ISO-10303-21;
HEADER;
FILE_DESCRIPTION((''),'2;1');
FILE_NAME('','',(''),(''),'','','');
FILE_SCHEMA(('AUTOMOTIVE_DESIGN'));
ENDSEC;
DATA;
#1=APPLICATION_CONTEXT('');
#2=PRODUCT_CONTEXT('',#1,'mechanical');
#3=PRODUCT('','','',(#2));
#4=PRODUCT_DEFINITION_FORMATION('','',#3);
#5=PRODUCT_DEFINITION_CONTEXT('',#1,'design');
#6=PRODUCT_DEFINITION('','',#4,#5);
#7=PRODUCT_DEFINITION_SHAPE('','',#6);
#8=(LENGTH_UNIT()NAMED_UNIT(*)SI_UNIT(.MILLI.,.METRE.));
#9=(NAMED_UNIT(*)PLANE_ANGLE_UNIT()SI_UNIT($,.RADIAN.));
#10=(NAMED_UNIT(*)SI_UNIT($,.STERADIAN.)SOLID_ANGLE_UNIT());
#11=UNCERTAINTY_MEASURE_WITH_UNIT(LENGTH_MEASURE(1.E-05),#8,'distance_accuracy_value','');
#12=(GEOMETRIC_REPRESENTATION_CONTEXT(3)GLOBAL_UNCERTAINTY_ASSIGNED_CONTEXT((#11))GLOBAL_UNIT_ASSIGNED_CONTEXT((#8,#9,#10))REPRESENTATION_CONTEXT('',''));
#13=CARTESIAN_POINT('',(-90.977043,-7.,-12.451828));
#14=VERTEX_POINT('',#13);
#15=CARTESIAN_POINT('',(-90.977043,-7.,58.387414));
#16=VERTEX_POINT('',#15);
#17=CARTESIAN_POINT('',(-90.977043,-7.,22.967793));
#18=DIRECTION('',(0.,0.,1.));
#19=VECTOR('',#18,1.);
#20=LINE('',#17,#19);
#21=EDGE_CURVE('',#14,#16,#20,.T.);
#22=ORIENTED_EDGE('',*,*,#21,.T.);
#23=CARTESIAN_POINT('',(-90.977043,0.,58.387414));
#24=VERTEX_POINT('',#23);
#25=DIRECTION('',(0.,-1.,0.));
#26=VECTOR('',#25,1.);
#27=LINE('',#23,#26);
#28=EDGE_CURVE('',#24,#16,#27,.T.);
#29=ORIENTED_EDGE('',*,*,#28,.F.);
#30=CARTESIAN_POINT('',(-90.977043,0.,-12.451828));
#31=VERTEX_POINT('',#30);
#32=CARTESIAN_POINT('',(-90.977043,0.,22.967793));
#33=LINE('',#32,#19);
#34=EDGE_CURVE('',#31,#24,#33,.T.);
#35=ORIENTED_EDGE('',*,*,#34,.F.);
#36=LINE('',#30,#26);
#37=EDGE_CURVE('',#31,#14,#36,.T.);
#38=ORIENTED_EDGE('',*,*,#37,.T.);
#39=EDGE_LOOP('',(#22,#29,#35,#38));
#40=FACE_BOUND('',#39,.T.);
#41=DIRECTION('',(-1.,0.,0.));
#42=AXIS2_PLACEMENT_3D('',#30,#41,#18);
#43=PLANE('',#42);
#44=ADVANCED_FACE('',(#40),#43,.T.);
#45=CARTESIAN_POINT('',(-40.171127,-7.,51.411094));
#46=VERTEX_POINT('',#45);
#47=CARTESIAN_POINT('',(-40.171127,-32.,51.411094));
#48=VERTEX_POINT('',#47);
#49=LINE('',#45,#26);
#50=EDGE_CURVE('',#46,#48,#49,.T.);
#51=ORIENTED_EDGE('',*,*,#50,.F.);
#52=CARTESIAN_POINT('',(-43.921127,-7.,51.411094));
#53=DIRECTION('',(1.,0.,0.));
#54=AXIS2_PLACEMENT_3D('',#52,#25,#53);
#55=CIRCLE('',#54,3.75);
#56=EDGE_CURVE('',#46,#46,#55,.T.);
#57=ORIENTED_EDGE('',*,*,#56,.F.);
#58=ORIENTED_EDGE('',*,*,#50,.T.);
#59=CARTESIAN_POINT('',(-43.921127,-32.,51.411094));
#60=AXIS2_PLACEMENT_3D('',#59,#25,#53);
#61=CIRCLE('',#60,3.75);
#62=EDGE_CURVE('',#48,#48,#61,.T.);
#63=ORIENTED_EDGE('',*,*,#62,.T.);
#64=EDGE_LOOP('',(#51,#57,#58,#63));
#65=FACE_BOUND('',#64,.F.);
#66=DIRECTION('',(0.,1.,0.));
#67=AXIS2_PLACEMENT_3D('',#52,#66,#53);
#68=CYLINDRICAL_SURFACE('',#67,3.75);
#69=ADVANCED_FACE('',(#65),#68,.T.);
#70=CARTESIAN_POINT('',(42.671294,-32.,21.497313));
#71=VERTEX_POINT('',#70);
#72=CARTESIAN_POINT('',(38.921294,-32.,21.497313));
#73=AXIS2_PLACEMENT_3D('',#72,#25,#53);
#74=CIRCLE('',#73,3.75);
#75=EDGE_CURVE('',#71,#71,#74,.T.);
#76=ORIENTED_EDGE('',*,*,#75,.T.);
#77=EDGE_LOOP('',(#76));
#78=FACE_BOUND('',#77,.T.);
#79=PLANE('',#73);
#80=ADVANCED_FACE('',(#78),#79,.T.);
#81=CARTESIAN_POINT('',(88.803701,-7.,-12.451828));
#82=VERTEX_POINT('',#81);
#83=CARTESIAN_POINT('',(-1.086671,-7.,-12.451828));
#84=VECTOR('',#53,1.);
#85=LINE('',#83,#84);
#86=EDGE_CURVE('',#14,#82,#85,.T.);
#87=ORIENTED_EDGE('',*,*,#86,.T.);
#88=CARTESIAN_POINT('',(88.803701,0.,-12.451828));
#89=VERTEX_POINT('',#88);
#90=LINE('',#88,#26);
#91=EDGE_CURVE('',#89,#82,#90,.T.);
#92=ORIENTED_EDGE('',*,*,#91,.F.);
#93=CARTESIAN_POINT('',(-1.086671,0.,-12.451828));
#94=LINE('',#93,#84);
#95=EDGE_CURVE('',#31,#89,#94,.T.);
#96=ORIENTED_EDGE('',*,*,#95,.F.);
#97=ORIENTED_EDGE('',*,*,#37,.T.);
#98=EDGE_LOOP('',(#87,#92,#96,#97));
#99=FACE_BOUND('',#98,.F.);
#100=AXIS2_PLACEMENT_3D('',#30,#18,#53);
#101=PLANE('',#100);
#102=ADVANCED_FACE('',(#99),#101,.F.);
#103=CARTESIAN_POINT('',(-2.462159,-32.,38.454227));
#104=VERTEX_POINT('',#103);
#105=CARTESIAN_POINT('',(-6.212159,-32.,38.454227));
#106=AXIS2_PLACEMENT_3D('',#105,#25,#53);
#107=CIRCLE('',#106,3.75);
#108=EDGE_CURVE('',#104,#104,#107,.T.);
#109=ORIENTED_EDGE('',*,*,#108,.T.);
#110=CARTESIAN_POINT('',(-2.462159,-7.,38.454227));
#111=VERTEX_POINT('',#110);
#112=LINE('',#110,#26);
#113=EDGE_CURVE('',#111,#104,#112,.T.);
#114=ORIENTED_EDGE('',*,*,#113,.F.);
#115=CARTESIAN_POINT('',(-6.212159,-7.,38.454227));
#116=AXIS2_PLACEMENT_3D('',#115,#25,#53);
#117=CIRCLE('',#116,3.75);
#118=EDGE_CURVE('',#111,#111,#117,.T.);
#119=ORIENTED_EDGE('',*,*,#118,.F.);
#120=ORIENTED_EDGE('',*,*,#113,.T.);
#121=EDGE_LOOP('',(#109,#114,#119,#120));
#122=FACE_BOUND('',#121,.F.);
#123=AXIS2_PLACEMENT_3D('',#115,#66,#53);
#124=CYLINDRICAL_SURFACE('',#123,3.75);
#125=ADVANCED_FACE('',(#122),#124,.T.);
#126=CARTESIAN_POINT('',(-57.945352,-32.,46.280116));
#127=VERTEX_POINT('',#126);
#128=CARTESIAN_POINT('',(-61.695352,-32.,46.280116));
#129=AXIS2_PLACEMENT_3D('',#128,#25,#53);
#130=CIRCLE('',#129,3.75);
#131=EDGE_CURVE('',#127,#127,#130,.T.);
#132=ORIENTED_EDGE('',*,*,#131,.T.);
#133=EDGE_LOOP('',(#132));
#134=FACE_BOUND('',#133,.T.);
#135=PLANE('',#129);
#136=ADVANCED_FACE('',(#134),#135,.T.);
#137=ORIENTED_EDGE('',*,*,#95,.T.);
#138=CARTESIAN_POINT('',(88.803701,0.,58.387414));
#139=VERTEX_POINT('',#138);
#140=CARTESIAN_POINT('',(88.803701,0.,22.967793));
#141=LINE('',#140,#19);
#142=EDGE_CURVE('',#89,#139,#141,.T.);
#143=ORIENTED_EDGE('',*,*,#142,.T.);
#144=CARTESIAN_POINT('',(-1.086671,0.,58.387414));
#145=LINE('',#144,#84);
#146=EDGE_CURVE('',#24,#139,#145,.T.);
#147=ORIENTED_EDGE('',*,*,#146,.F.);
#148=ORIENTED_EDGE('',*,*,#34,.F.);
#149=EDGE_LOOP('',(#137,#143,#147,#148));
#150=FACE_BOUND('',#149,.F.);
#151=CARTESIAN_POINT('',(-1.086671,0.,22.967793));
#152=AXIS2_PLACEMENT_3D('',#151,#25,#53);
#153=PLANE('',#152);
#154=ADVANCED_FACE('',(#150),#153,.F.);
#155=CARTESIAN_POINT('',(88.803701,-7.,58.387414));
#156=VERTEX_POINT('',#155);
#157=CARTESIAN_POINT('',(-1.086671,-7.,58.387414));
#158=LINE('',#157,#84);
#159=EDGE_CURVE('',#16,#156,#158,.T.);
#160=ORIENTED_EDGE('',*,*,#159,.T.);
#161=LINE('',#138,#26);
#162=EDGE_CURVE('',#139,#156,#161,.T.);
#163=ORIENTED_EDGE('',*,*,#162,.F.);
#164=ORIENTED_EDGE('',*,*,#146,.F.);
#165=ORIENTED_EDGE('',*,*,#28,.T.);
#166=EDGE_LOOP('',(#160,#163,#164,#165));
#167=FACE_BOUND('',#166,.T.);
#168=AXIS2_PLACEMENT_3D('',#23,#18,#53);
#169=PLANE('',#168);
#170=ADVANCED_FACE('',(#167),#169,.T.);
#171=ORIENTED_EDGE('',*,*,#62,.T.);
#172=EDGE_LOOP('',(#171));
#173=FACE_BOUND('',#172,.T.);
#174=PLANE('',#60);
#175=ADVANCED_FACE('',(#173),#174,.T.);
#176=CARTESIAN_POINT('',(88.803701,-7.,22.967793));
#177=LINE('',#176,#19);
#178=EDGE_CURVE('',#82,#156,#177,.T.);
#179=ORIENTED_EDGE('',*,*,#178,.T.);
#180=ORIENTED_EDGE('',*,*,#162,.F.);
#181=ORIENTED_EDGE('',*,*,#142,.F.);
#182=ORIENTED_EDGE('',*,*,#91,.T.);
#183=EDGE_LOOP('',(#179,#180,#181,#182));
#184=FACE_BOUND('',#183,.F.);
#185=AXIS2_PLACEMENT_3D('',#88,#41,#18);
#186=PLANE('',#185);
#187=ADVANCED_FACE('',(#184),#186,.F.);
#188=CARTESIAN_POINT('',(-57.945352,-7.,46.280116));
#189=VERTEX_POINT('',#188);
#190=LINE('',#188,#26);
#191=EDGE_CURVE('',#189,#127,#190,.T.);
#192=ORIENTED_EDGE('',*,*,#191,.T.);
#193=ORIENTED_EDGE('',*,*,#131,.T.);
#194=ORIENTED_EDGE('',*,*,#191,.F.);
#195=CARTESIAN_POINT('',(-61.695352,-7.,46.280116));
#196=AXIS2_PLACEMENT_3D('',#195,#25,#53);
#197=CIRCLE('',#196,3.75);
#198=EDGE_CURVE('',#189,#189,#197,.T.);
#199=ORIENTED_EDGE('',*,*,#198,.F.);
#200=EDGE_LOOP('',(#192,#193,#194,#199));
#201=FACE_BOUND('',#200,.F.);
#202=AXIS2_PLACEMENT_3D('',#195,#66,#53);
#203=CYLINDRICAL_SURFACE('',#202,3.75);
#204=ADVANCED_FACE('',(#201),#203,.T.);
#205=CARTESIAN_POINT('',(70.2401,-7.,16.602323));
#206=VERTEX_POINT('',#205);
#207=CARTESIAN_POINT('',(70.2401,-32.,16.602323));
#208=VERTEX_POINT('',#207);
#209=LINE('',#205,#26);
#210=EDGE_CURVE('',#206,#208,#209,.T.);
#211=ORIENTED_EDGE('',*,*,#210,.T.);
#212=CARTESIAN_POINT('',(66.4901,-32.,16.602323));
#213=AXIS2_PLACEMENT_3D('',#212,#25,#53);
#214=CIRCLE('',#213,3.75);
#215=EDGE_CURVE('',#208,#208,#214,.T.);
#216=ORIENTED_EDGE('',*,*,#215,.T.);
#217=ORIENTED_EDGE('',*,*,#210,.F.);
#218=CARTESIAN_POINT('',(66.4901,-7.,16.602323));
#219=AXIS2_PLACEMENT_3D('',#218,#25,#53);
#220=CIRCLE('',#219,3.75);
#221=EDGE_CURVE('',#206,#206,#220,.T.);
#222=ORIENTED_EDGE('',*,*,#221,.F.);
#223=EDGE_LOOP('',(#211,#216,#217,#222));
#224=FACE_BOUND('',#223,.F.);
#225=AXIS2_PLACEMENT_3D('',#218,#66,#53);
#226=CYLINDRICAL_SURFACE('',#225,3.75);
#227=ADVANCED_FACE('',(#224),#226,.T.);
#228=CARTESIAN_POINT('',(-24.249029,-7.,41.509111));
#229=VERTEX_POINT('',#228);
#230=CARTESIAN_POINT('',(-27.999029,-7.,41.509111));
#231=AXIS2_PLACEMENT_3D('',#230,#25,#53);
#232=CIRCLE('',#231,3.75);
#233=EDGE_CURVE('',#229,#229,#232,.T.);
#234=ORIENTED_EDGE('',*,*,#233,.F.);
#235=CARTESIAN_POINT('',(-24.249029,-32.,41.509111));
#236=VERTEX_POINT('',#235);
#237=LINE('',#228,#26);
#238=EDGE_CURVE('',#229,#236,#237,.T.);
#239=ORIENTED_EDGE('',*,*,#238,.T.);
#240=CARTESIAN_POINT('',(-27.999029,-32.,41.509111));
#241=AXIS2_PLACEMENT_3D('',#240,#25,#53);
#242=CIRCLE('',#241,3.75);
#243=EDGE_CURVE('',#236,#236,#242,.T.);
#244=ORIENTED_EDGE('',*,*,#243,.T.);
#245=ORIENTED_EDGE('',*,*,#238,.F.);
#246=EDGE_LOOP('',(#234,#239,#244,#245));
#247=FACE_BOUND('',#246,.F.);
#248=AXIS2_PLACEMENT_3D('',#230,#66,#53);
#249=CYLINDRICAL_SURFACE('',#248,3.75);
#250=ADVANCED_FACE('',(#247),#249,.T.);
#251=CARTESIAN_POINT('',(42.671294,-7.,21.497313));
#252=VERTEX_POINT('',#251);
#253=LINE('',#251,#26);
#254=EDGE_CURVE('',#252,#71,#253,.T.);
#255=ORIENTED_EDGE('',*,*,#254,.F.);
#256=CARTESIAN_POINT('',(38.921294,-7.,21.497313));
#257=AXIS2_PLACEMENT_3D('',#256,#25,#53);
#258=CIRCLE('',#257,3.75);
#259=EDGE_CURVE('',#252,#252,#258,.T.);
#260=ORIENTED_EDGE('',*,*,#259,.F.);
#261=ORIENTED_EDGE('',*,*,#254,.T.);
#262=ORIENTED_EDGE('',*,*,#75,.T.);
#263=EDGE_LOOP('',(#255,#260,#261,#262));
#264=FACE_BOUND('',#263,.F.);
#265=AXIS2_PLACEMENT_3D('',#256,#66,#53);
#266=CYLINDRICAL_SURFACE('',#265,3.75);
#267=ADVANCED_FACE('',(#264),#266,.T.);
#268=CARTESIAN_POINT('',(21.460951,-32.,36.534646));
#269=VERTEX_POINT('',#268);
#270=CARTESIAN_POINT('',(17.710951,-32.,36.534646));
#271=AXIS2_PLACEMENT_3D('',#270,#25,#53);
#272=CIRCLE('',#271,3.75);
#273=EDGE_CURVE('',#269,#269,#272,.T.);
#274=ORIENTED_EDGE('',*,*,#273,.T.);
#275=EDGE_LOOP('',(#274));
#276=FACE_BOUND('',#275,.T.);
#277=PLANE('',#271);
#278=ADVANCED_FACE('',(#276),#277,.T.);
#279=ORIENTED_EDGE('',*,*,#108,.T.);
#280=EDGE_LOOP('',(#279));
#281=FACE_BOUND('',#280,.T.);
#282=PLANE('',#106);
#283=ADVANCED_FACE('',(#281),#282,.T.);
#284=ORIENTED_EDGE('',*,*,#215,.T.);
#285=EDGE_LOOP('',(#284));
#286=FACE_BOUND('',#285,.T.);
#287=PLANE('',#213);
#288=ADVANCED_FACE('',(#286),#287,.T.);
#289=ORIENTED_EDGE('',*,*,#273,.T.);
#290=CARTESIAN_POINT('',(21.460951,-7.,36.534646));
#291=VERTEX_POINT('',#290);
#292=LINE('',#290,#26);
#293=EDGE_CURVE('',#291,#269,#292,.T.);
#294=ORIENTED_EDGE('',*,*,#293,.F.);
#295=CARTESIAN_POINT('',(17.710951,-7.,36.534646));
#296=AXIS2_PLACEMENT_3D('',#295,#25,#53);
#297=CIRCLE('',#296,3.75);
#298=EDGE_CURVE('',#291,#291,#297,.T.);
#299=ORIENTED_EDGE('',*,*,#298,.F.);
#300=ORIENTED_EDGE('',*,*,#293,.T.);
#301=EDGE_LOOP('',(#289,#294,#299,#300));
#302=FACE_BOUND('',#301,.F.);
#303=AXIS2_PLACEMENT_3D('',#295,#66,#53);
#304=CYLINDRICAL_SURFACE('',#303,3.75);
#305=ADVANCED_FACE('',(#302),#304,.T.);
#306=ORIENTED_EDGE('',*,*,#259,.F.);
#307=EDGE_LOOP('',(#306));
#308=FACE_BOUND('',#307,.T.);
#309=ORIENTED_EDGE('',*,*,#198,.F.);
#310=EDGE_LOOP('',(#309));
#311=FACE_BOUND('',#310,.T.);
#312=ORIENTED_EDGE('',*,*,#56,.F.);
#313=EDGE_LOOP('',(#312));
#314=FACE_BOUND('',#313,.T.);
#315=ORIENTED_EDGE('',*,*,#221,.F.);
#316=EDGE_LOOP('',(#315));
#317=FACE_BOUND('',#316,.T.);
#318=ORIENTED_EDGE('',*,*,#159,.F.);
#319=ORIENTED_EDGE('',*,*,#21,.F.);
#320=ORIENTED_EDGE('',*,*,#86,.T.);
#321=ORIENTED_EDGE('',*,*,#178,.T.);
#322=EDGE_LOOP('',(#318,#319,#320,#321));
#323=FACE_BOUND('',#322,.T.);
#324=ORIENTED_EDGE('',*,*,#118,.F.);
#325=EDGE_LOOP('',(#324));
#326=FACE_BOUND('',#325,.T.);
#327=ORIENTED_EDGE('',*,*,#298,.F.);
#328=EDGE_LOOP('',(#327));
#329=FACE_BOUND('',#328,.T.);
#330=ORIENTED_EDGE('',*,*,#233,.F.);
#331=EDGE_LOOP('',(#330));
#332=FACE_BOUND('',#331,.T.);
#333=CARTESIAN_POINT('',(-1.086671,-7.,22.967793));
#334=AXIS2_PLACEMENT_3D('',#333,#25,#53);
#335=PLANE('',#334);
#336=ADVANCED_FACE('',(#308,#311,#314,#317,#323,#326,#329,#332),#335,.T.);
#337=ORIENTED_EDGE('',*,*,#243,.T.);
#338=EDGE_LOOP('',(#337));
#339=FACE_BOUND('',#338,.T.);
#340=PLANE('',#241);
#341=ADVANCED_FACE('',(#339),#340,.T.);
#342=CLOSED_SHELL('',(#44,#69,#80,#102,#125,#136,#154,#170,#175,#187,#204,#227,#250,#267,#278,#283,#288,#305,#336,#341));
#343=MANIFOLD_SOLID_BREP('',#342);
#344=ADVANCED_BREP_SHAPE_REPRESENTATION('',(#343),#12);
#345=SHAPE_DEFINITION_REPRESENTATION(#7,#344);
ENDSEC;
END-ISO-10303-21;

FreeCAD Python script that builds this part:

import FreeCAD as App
import Part
import Sketcher

V = App.Vector
Q = App.Units.Quantity

doc = App.newDocument("Part")
body = doc.addObject("PartDesign::Body", "Body")

sketch1 = body.newObject("Sketcher::SketchObject", "Sketch")
sketch1.AttachmentSupport = (doc.getObject("XZ_Plane"), [""])
sketch1.MapMode = "FlatFace"
sketch1.addGeometry([
    Part.LineSegment(V(-91, 58, 0), V(-91, -12, 0)),
    Part.LineSegment(V(-91, -12, 0), V(89, -12, 0)),
    Part.LineSegment(V(89, -12, 0), V(89, 58, 0)),
    Part.LineSegment(V(89, 58, 0), V(-91, 58, 0)),
], False)
sketch1.addConstraint([
    Sketcher.Constraint("Coincident", 0, 2, 1, 1),
    Sketcher.Constraint("Coincident", 1, 2, 2, 1),
    Sketcher.Constraint("Coincident", 2, 2, 3, 1),
    Sketcher.Constraint("Coincident", 3, 2, 0, 1),
    Sketcher.Constraint("Vertical", 0),
    Sketcher.Constraint("Horizontal", 1),
    Sketcher.Constraint("Vertical", 2),
    Sketcher.Constraint("Horizontal", 3),
    Sketcher.Constraint("DistanceY", 0, 2, 0, 1, Q("70.839242 mm")),
    Sketcher.Constraint("DistanceX", -1, 1, 1, 2, Q("88.803701 mm")),
    Sketcher.Constraint("DistanceX", 1, 1, 1, 2, Q("179.780744 mm")),
    Sketcher.Constraint("DistanceY", 0, 2, -1, 1, Q("12.451828 mm")),
])
pad1 = body.newObject("PartDesign::Pad", "Pad")
pad1.Profile = sketch1
pad1.Length = 7

sketch2 = body.newObject("Sketcher::SketchObject", "Sketch001")
sketch2.AttachmentSupport = (doc.getObject("XZ_Plane"), [""])
sketch2.MapMode = "FlatFace"
sketch2.AttachmentOffset = App.Placement(V(0, 0, 7), App.Rotation())
sketch2.addGeometry(Part.Circle(V(-61.7, 46.3, 0), V(0, 0, 1), 3.8), False)
sketch2.addConstraint([
    Sketcher.Constraint("Diameter", 0, Q("7.5 mm")),
    Sketcher.Constraint("DistanceX", 0, 3, -1, 1, Q("61.695352 mm")),
    Sketcher.Constraint("DistanceY", -1, 1, 0, 3, Q("46.280116 mm")),
])
pad2 = body.newObject("PartDesign::Pad", "Pad001")
pad2.Profile = sketch2
pad2.Length = 25

sketch3 = body.newObject("Sketcher::SketchObject", "Sketch002")
sketch3.AttachmentSupport = (doc.getObject("XZ_Plane"), [""])
sketch3.MapMode = "FlatFace"
sketch3.AttachmentOffset = App.Placement(V(0, 0, 7), App.Rotation())
sketch3.addGeometry(Part.Circle(V(-43.9, 51.4, 0), V(0, 0, 1), 3.8), False)
sketch3.addConstraint([
    Sketcher.Constraint("Diameter", 0, Q("7.5 mm")),
    Sketcher.Constraint("DistanceX", 0, 3, -1, 1, Q("43.921127 mm")),
    Sketcher.Constraint("DistanceY", -1, 1, 0, 3, Q("51.411094 mm")),
])
pad3 = body.newObject("PartDesign::Pad", "Pad002")
pad3.Profile = sketch3
pad3.Length = 25

sketch4 = body.newObject("Sketcher::SketchObject", "Sketch003")
sketch4.AttachmentSupport = (doc.getObject("XZ_Plane"), [""])
sketch4.MapMode = "FlatFace"
sketch4.AttachmentOffset = App.Placement(V(0, 0, 7), App.Rotation())
sketch4.addGeometry(Part.Circle(V(-28, 41.5, 0), V(0, 0, 1), 3.8), False)
sketch4.addConstraint([
    Sketcher.Constraint("Diameter", 0, Q("7.5 mm")),
    Sketcher.Constraint("DistanceX", 0, 3, -1, 1, Q("27.999029 mm")),
    Sketcher.Constraint("DistanceY", -1, 1, 0, 3, Q("41.509111 mm")),
])
pad4 = body.newObject("PartDesign::Pad", "Pad003")
pad4.Profile = sketch4
pad4.Length = 25

sketch5 = body.newObject("Sketcher::SketchObject", "Sketch004")
sketch5.AttachmentSupport = (doc.getObject("XZ_Plane"), [""])
sketch5.MapMode = "FlatFace"
sketch5.AttachmentOffset = App.Placement(V(0, 0, 7), App.Rotation())
sketch5.addGeometry(Part.Circle(V(-6.2, 38.5, 0), V(0, 0, 1), 3.8), False)
sketch5.addConstraint([
    Sketcher.Constraint("Diameter", 0, Q("7.5 mm")),
    Sketcher.Constraint("DistanceX", 0, 3, -1, 1, Q("6.212159 mm")),
    Sketcher.Constraint("DistanceY", -1, 1, 0, 3, Q("38.454227 mm")),
])
pad5 = body.newObject("PartDesign::Pad", "Pad004")
pad5.Profile = sketch5
pad5.Length = 25

sketch6 = body.newObject("Sketcher::SketchObject", "Sketch005")
sketch6.AttachmentSupport = (doc.getObject("XZ_Plane"), [""])
sketch6.MapMode = "FlatFace"
sketch6.AttachmentOffset = App.Placement(V(0, 0, 7), App.Rotation())
sketch6.addGeometry(Part.Circle(V(17.7, 36.5, 0), V(0, 0, 1), 3.8), False)
sketch6.addConstraint([
    Sketcher.Constraint("Diameter", 0, Q("7.5 mm")),
    Sketcher.Constraint("DistanceX", -1, 1, 0, 3, Q("17.710951 mm")),
    Sketcher.Constraint("DistanceY", -1, 1, 0, 3, Q("36.534646 mm")),
])
pad6 = body.newObject("PartDesign::Pad", "Pad005")
pad6.Profile = sketch6
pad6.Length = 25

sketch7 = body.newObject("Sketcher::SketchObject", "Sketch006")
sketch7.AttachmentSupport = (doc.getObject("XZ_Plane"), [""])
sketch7.MapMode = "FlatFace"
sketch7.AttachmentOffset = App.Placement(V(0, 0, 7), App.Rotation())
sketch7.addGeometry(Part.Circle(V(38.9, 21.5, 0), V(0, 0, 1), 3.8), False)
sketch7.addConstraint([
    Sketcher.Constraint("Diameter", 0, Q("7.5 mm")),
    Sketcher.Constraint("DistanceX", -1, 1, 0, 3, Q("38.921294 mm")),
    Sketcher.Constraint("DistanceY", -1, 1, 0, 3, Q("21.497313 mm")),
])
pad7 = body.newObject("PartDesign::Pad", "Pad006")
pad7.Profile = sketch7
pad7.Length = 25

sketch8 = body.newObject("Sketcher::SketchObject", "Sketch007")
sketch8.AttachmentSupport = (doc.getObject("XZ_Plane"), [""])
sketch8.MapMode = "FlatFace"
sketch8.AttachmentOffset = App.Placement(V(0, 0, 7), App.Rotation())
sketch8.addGeometry(Part.Circle(V(66.5, 16.6, 0), V(0, 0, 1), 3.8), False)
sketch8.addConstraint([
    Sketcher.Constraint("Diameter", 0, Q("7.5 mm")),
    Sketcher.Constraint("DistanceX", -1, 1, 0, 3, Q("66.4901 mm")),
    Sketcher.Constraint("DistanceY", -1, 1, 0, 3, Q("16.602323 mm")),
])
pad8 = body.newObject("PartDesign::Pad", "Pad007")
pad8.Profile = sketch8
pad8.Length = 25

doc.recompute()
